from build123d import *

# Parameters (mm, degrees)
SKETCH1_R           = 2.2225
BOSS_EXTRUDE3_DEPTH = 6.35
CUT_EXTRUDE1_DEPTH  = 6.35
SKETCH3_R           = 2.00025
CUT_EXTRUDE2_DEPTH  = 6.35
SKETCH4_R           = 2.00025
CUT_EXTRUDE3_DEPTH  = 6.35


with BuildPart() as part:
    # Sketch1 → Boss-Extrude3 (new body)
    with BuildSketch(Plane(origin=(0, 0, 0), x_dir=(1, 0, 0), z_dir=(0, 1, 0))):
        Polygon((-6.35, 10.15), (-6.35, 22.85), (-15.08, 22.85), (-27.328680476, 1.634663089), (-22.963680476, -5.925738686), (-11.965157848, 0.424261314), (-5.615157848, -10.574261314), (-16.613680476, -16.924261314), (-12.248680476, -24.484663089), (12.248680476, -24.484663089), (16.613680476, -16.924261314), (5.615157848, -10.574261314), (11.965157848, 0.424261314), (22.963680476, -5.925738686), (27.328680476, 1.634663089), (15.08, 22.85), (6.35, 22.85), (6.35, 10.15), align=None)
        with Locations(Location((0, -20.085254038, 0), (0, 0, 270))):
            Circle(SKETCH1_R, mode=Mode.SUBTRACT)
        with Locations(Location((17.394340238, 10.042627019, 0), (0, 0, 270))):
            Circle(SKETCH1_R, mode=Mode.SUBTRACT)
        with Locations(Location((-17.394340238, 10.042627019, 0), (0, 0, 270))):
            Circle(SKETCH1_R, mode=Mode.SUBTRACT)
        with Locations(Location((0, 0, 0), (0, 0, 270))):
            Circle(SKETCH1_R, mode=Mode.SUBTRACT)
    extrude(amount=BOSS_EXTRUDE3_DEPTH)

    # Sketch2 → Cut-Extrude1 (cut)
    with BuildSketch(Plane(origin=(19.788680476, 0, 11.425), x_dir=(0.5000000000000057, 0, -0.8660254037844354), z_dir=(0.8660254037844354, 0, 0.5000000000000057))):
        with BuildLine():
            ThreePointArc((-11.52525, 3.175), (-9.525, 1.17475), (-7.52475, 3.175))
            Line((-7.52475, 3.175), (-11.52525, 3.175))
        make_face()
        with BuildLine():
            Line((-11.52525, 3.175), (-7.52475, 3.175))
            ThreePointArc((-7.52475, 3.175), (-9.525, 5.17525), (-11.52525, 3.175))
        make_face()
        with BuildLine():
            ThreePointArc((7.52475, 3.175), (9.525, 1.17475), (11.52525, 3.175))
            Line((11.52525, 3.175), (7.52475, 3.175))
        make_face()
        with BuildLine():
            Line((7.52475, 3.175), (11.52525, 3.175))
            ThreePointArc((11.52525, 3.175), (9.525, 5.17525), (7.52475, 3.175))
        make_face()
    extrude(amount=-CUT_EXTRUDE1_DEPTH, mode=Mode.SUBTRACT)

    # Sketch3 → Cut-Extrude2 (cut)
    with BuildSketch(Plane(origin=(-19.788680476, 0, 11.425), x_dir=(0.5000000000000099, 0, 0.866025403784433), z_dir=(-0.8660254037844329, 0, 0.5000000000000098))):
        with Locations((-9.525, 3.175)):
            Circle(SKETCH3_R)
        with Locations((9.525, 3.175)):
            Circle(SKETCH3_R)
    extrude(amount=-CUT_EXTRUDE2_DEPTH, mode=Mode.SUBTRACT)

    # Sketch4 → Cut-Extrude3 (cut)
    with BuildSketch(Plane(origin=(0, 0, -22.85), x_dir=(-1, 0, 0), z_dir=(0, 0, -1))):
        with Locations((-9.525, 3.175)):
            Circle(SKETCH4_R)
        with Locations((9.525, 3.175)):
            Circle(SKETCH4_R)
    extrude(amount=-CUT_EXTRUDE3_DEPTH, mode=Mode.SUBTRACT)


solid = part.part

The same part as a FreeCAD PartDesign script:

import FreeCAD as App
import Part
import Sketcher
Q = App.Units.Quantity

doc = App.newDocument("Part")
body = doc.addObject("PartDesign::Body", "Body")

# Sketch on XZ plane
sketch1 = body.newObject("Sketcher::SketchObject", "Sketch")
sketch1.AttachmentSupport = (doc.getObject("XZ_Plane"), [""])
sketch1.MapMode = "FlatFace"
sketch1.addGeometry([
    Part.LineSegment(App.Vector(-6.35, -10.15, 0), App.Vector(-6.35, -22.85, 0)),  # 0
    Part.LineSegment(App.Vector(-6.35, -22.85, 0), App.Vector(-15.08, -22.85, 0)),  # 1
    Part.LineSegment(App.Vector(-15.08, -22.85, 0), App.Vector(-27.32868, -1.634663, 0)),  # 2
    Part.LineSegment(App.Vector(-27.32868, -1.634663, 0), App.Vector(-22.96368, 5.925739, 0)),  # 3
    Part.LineSegment(App.Vector(-22.96368, 5.925739, 0), App.Vector(-11.965158, -0.424261, 0)),  # 4
    Part.LineSegment(App.Vector(-11.965158, -0.424261, 0), App.Vector(-5.615158, 10.574261, 0)),  # 5
    Part.LineSegment(App.Vector(-5.615158, 10.574261, 0), App.Vector(-16.61368, 16.924261, 0)),  # 6
    Part.LineSegment(App.Vector(-16.61368, 16.924261, 0), App.Vector(-12.24868, 24.484663, 0)),  # 7
    Part.LineSegment(App.Vector(-12.24868, 24.484663, 0), App.Vector(12.24868, 24.484663, 0)),  # 8
    Part.LineSegment(App.Vector(12.24868, 24.484663, 0), App.Vector(16.61368, 16.924261, 0)),  # 9
    Part.LineSegment(App.Vector(16.61368, 16.924261, 0), App.Vector(5.615158, 10.574261, 0)),  # 10
    Part.LineSegment(App.Vector(5.615158, 10.574261, 0), App.Vector(11.965158, -0.424261, 0)),  # 11
    Part.LineSegment(App.Vector(11.965158, -0.424261, 0), App.Vector(22.96368, 5.925739, 0)),  # 12
    Part.LineSegment(App.Vector(22.96368, 5.925739, 0), App.Vector(27.32868, -1.634663, 0)),  # 13
    Part.LineSegment(App.Vector(27.32868, -1.634663, 0), App.Vector(15.08, -22.85, 0)),  # 14
    Part.LineSegment(App.Vector(15.08, -22.85, 0), App.Vector(6.35, -22.85, 0)),  # 15
    Part.LineSegment(App.Vector(6.35, -22.85, 0), App.Vector(6.35, -10.15, 0)),  # 16
    Part.LineSegment(App.Vector(6.35, -10.15, 0), App.Vector(-6.35, -10.15, 0)),  # 17
    Part.Circle(App.Vector(0, 20.085254, 0), App.Vector(0, 0, 1), 2.2225),  # 18
    Part.Circle(App.Vector(-17.39434, -10.042627, 0), App.Vector(0, 0, 1), 2.2225),  # 19
    Part.Circle(App.Vector(0, 0, 0), App.Vector(0, 0, 1), 2.2225),  # 20
    Part.Circle(App.Vector(17.39434, -10.042627, 0), App.Vector(0, 0, 1), 2.2225),  # 21
], False)
sketch1.addConstraint([
    Sketcher.Constraint("Coincident", 0, 2, 1, 1),
    Sketcher.Constraint("Coincident", 1, 2, 2, 1),
    Sketcher.Constraint("Coincident", 2, 2, 3, 1),
    Sketcher.Constraint("Coincident", 3, 2, 4, 1),
    Sketcher.Constraint("Coincident", 4, 2, 5, 1),
    Sketcher.Constraint("Coincident", 5, 2, 6, 1),
    Sketcher.Constraint("Coincident", 6, 2, 7, 1),
    Sketcher.Constraint("Coincident", 7, 2, 8, 1),
    Sketcher.Constraint("Coincident", 8, 2, 9, 1),
    Sketcher.Constraint("Coincident", 9, 2, 10, 1),
    Sketcher.Constraint("Coincident", 10, 2, 11, 1),
    Sketcher.Constraint("Coincident", 11, 2, 12, 1),
    Sketcher.Constraint("Coincident", 12, 2, 13, 1),
    Sketcher.Constraint("Coincident", 13, 2, 14, 1),
    Sketcher.Constraint("Coincident", 14, 2, 15, 1),
    Sketcher.Constraint("Coincident", 15, 2, 16, 1),
    Sketcher.Constraint("Coincident", 16, 2, 17, 1),
    Sketcher.Constraint("Coincident", 17, 2, 0, 1),
    Sketcher.Constraint("Vertical", 0),
    Sketcher.Constraint("Horizontal", 1),
    Sketcher.Constraint("Horizontal", 8),
    Sketcher.Constraint("Horizontal", 15),
    Sketcher.Constraint("Vertical", 16),
    Sketcher.Constraint("Horizontal", 17),
    Sketcher.Constraint("Coincident", 20, 3, -1, 1),
    Sketcher.Constraint("Equal", 18, 19),
    Sketcher.Constraint("Equal", 19, 20),
    Sketcher.Constraint("Equal", 20, 21),
    Sketcher.Constraint("Symmetric", 19, 3, 21, 3, -2),
    Sketcher.Constraint("Symmetric", 6, 2, 9, 2, -2),
    Sketcher.Constraint("Symmetric", 5, 2, 10, 2, -2),
    Sketcher.Constraint("Symmetric", 4, 2, 11, 2, -2),
    Sketcher.Constraint("Symmetric", 3, 2, 12, 2, -2),
    Sketcher.Constraint("Symmetric", 2, 2, 13, 2, -2),
    Sketcher.Constraint("Symmetric", 1, 2, 14, 2, -2),
    Sketcher.Constraint("PointOnObject", 18, 3, -2),
    Sketcher.Constraint("Perpendicular", 3, 4),
    Sketcher.Constraint("Perpendicular", 4, 5),
    Sketcher.Constraint("Perpendicular", 5, 6),
    Sketcher.Constraint("Perpendicular", 6, 7),
    Sketcher.Constraint("Parallel", 2, 9),
    Sketcher.Constraint("Perpendicular", 9, 10),
    Sketcher.Constraint("Equal", 1, 15),
    Sketcher.Constraint("Equal", 17, 0),
    Sketcher.Constraint("Equal", 4, 5),
    Sketcher.Constraint("Equal", 5, 6),
    Sketcher.Constraint("Equal", 3, 7),
    Sketcher.Constraint("Diameter", 18, Q("0.175 in")),
    Sketcher.Constraint("DistanceX", 17, 2, 17, 1, Q("0.5 in")),
    Sketcher.Constraint("Angle", 2, Q("120 deg")),
    Sketcher.Constraint("Distance", 4, Q("0.5 in")),
    Sketcher.Constraint("DistanceX", 1, 2, 1, 1, 8.73),
    Sketcher.Constraint("Distance", 3, 8.73),
    Sketcher.Constraint("DistanceX", 8, 1, 8, 2, 24.497361),
    Sketcher.Constraint("DistanceY", 0, 2, -1, 1, 22.85),
    Sketcher.Constraint("DistanceX", 19, 3, -1, 1, 17.39434),
    Sketcher.Constraint("DistanceY", 19, 3, 18, 3, 30.127881),
    Sketcher.Constraint("DistanceY", 19, 3, 5, 2, 20.616888),
])
pad1 = body.newObject("PartDesign::Pad", "Pad")
pad1.Profile = sketch1
pad1.Length = Q("0.25 in")
pad1.Reversed = True

# Sketch on an angled plane
sketch2 = body.newObject("Sketcher::SketchObject", "Sketch001")
sketch2.Placement = App.Placement(App.Vector(19.78868, 0, 11.425), App.Rotation(App.Vector(0.5, 0, -0.866025404), App.Vector(0, 1, 0), App.Vector(0.866025404, 0, 0.5), "ZXY"))
sketch2.addGeometry([
    Part.Circle(App.Vector(-9.525, 3.175, 0), App.Vector(0, 0, 1), 2.00025),
    Part.Circle(App.Vector(9.525, 3.175, 0), App.Vector(0, 0, 1), 2.00025),
], False)
sketch2.addConstraint([
    Sketcher.Constraint("Equal", 0, 1),
    Sketcher.Constraint("Symmetric", 0, 3, 1, 3, -2),
    Sketcher.Constraint("Diameter", 0, Q("0.1575 in")),
    Sketcher.Constraint("DistanceX", 0, 3, 1, 3, Q("0.75 in")),
    Sketcher.Constraint("DistanceY", -1, 1, 0, 3, Q("0.125 in")),
])
pocket1 = body.newObject("PartDesign::Pocket", "Pocket")
pocket1.Profile = sketch2
pocket1.Length = Q("0.25 in")

# Sketch on an angled plane
sketch3 = body.newObject("Sketcher::SketchObject", "Sketch002")
sketch3.Placement = App.Placement(App.Vector(-19.78868, 0, 11.425), App.Rotation(App.Vector(0.5, 0, 0.866025404), App.Vector(0, 1, 0), App.Vector(-0.866025404, 0, 0.5), "ZXY"))
sketch3.addGeometry([
    Part.Circle(App.Vector(-9.525, 3.175, 0), App.Vector(0, 0, 1), 2.00025),
    Part.Circle(App.Vector(9.525, 3.175, 0), App.Vector(0, 0, 1), 2.00025),
], False)
sketch3.addConstraint([
    Sketcher.Constraint("Equal", 0, 1),
    Sketcher.Constraint("Symmetric", 0, 3, 1, 3, -2),
    Sketcher.Constraint("Diameter", 0, Q("0.1575 in")),
    Sketcher.Constraint("DistanceX", 0, 3, 1, 3, Q("0.75 in")),
    Sketcher.Constraint("DistanceY", -1, 1, 0, 3, Q("0.125 in")),
])
pocket2 = body.newObject("PartDesign::Pocket", "Pocket001")
pocket2.Profile = sketch3
pocket2.Length = Q("0.25 in")

# Sketch on XY plane
sketch4 = body.newObject("Sketcher::SketchObject", "Sketch003")
sketch4.AttachmentSupport = (doc.getObject("XY_Plane"), [""])
sketch4.MapMode = "FlatFace"
sketch4.AttachmentOffset = App.Placement(App.Vector(0, 0, -22.85), App.Rotation())
sketch4.addGeometry([
    Part.Circle(App.Vector(9.525, 3.175, 0), App.Vector(0, 0, 1), 2.00025),
    Part.Circle(App.Vector(-9.525, 3.175, 0), App.Vector(0, 0, 1), 2.00025),
], False)
sketch4.addConstraint([
    Sketcher.Constraint("Equal", 0, 1),
    Sketcher.Constraint("Symmetric", 0, 3, 1, 3, -2),
    Sketcher.Constraint("Diameter", 0, Q("0.1575 in")),
    Sketcher.Constraint("DistanceX", 1, 3, 0, 3, Q("0.75 in")),
    Sketcher.Constraint("DistanceY", -1, 1, 0, 3, Q("0.125 in")),
])
pocket3 = body.newObject("PartDesign::Pocket", "Pocket002")
pocket3.Profile = sketch4
pocket3.Length = Q("0.25 in")
pocket3.Reversed = True

doc.recompute()
